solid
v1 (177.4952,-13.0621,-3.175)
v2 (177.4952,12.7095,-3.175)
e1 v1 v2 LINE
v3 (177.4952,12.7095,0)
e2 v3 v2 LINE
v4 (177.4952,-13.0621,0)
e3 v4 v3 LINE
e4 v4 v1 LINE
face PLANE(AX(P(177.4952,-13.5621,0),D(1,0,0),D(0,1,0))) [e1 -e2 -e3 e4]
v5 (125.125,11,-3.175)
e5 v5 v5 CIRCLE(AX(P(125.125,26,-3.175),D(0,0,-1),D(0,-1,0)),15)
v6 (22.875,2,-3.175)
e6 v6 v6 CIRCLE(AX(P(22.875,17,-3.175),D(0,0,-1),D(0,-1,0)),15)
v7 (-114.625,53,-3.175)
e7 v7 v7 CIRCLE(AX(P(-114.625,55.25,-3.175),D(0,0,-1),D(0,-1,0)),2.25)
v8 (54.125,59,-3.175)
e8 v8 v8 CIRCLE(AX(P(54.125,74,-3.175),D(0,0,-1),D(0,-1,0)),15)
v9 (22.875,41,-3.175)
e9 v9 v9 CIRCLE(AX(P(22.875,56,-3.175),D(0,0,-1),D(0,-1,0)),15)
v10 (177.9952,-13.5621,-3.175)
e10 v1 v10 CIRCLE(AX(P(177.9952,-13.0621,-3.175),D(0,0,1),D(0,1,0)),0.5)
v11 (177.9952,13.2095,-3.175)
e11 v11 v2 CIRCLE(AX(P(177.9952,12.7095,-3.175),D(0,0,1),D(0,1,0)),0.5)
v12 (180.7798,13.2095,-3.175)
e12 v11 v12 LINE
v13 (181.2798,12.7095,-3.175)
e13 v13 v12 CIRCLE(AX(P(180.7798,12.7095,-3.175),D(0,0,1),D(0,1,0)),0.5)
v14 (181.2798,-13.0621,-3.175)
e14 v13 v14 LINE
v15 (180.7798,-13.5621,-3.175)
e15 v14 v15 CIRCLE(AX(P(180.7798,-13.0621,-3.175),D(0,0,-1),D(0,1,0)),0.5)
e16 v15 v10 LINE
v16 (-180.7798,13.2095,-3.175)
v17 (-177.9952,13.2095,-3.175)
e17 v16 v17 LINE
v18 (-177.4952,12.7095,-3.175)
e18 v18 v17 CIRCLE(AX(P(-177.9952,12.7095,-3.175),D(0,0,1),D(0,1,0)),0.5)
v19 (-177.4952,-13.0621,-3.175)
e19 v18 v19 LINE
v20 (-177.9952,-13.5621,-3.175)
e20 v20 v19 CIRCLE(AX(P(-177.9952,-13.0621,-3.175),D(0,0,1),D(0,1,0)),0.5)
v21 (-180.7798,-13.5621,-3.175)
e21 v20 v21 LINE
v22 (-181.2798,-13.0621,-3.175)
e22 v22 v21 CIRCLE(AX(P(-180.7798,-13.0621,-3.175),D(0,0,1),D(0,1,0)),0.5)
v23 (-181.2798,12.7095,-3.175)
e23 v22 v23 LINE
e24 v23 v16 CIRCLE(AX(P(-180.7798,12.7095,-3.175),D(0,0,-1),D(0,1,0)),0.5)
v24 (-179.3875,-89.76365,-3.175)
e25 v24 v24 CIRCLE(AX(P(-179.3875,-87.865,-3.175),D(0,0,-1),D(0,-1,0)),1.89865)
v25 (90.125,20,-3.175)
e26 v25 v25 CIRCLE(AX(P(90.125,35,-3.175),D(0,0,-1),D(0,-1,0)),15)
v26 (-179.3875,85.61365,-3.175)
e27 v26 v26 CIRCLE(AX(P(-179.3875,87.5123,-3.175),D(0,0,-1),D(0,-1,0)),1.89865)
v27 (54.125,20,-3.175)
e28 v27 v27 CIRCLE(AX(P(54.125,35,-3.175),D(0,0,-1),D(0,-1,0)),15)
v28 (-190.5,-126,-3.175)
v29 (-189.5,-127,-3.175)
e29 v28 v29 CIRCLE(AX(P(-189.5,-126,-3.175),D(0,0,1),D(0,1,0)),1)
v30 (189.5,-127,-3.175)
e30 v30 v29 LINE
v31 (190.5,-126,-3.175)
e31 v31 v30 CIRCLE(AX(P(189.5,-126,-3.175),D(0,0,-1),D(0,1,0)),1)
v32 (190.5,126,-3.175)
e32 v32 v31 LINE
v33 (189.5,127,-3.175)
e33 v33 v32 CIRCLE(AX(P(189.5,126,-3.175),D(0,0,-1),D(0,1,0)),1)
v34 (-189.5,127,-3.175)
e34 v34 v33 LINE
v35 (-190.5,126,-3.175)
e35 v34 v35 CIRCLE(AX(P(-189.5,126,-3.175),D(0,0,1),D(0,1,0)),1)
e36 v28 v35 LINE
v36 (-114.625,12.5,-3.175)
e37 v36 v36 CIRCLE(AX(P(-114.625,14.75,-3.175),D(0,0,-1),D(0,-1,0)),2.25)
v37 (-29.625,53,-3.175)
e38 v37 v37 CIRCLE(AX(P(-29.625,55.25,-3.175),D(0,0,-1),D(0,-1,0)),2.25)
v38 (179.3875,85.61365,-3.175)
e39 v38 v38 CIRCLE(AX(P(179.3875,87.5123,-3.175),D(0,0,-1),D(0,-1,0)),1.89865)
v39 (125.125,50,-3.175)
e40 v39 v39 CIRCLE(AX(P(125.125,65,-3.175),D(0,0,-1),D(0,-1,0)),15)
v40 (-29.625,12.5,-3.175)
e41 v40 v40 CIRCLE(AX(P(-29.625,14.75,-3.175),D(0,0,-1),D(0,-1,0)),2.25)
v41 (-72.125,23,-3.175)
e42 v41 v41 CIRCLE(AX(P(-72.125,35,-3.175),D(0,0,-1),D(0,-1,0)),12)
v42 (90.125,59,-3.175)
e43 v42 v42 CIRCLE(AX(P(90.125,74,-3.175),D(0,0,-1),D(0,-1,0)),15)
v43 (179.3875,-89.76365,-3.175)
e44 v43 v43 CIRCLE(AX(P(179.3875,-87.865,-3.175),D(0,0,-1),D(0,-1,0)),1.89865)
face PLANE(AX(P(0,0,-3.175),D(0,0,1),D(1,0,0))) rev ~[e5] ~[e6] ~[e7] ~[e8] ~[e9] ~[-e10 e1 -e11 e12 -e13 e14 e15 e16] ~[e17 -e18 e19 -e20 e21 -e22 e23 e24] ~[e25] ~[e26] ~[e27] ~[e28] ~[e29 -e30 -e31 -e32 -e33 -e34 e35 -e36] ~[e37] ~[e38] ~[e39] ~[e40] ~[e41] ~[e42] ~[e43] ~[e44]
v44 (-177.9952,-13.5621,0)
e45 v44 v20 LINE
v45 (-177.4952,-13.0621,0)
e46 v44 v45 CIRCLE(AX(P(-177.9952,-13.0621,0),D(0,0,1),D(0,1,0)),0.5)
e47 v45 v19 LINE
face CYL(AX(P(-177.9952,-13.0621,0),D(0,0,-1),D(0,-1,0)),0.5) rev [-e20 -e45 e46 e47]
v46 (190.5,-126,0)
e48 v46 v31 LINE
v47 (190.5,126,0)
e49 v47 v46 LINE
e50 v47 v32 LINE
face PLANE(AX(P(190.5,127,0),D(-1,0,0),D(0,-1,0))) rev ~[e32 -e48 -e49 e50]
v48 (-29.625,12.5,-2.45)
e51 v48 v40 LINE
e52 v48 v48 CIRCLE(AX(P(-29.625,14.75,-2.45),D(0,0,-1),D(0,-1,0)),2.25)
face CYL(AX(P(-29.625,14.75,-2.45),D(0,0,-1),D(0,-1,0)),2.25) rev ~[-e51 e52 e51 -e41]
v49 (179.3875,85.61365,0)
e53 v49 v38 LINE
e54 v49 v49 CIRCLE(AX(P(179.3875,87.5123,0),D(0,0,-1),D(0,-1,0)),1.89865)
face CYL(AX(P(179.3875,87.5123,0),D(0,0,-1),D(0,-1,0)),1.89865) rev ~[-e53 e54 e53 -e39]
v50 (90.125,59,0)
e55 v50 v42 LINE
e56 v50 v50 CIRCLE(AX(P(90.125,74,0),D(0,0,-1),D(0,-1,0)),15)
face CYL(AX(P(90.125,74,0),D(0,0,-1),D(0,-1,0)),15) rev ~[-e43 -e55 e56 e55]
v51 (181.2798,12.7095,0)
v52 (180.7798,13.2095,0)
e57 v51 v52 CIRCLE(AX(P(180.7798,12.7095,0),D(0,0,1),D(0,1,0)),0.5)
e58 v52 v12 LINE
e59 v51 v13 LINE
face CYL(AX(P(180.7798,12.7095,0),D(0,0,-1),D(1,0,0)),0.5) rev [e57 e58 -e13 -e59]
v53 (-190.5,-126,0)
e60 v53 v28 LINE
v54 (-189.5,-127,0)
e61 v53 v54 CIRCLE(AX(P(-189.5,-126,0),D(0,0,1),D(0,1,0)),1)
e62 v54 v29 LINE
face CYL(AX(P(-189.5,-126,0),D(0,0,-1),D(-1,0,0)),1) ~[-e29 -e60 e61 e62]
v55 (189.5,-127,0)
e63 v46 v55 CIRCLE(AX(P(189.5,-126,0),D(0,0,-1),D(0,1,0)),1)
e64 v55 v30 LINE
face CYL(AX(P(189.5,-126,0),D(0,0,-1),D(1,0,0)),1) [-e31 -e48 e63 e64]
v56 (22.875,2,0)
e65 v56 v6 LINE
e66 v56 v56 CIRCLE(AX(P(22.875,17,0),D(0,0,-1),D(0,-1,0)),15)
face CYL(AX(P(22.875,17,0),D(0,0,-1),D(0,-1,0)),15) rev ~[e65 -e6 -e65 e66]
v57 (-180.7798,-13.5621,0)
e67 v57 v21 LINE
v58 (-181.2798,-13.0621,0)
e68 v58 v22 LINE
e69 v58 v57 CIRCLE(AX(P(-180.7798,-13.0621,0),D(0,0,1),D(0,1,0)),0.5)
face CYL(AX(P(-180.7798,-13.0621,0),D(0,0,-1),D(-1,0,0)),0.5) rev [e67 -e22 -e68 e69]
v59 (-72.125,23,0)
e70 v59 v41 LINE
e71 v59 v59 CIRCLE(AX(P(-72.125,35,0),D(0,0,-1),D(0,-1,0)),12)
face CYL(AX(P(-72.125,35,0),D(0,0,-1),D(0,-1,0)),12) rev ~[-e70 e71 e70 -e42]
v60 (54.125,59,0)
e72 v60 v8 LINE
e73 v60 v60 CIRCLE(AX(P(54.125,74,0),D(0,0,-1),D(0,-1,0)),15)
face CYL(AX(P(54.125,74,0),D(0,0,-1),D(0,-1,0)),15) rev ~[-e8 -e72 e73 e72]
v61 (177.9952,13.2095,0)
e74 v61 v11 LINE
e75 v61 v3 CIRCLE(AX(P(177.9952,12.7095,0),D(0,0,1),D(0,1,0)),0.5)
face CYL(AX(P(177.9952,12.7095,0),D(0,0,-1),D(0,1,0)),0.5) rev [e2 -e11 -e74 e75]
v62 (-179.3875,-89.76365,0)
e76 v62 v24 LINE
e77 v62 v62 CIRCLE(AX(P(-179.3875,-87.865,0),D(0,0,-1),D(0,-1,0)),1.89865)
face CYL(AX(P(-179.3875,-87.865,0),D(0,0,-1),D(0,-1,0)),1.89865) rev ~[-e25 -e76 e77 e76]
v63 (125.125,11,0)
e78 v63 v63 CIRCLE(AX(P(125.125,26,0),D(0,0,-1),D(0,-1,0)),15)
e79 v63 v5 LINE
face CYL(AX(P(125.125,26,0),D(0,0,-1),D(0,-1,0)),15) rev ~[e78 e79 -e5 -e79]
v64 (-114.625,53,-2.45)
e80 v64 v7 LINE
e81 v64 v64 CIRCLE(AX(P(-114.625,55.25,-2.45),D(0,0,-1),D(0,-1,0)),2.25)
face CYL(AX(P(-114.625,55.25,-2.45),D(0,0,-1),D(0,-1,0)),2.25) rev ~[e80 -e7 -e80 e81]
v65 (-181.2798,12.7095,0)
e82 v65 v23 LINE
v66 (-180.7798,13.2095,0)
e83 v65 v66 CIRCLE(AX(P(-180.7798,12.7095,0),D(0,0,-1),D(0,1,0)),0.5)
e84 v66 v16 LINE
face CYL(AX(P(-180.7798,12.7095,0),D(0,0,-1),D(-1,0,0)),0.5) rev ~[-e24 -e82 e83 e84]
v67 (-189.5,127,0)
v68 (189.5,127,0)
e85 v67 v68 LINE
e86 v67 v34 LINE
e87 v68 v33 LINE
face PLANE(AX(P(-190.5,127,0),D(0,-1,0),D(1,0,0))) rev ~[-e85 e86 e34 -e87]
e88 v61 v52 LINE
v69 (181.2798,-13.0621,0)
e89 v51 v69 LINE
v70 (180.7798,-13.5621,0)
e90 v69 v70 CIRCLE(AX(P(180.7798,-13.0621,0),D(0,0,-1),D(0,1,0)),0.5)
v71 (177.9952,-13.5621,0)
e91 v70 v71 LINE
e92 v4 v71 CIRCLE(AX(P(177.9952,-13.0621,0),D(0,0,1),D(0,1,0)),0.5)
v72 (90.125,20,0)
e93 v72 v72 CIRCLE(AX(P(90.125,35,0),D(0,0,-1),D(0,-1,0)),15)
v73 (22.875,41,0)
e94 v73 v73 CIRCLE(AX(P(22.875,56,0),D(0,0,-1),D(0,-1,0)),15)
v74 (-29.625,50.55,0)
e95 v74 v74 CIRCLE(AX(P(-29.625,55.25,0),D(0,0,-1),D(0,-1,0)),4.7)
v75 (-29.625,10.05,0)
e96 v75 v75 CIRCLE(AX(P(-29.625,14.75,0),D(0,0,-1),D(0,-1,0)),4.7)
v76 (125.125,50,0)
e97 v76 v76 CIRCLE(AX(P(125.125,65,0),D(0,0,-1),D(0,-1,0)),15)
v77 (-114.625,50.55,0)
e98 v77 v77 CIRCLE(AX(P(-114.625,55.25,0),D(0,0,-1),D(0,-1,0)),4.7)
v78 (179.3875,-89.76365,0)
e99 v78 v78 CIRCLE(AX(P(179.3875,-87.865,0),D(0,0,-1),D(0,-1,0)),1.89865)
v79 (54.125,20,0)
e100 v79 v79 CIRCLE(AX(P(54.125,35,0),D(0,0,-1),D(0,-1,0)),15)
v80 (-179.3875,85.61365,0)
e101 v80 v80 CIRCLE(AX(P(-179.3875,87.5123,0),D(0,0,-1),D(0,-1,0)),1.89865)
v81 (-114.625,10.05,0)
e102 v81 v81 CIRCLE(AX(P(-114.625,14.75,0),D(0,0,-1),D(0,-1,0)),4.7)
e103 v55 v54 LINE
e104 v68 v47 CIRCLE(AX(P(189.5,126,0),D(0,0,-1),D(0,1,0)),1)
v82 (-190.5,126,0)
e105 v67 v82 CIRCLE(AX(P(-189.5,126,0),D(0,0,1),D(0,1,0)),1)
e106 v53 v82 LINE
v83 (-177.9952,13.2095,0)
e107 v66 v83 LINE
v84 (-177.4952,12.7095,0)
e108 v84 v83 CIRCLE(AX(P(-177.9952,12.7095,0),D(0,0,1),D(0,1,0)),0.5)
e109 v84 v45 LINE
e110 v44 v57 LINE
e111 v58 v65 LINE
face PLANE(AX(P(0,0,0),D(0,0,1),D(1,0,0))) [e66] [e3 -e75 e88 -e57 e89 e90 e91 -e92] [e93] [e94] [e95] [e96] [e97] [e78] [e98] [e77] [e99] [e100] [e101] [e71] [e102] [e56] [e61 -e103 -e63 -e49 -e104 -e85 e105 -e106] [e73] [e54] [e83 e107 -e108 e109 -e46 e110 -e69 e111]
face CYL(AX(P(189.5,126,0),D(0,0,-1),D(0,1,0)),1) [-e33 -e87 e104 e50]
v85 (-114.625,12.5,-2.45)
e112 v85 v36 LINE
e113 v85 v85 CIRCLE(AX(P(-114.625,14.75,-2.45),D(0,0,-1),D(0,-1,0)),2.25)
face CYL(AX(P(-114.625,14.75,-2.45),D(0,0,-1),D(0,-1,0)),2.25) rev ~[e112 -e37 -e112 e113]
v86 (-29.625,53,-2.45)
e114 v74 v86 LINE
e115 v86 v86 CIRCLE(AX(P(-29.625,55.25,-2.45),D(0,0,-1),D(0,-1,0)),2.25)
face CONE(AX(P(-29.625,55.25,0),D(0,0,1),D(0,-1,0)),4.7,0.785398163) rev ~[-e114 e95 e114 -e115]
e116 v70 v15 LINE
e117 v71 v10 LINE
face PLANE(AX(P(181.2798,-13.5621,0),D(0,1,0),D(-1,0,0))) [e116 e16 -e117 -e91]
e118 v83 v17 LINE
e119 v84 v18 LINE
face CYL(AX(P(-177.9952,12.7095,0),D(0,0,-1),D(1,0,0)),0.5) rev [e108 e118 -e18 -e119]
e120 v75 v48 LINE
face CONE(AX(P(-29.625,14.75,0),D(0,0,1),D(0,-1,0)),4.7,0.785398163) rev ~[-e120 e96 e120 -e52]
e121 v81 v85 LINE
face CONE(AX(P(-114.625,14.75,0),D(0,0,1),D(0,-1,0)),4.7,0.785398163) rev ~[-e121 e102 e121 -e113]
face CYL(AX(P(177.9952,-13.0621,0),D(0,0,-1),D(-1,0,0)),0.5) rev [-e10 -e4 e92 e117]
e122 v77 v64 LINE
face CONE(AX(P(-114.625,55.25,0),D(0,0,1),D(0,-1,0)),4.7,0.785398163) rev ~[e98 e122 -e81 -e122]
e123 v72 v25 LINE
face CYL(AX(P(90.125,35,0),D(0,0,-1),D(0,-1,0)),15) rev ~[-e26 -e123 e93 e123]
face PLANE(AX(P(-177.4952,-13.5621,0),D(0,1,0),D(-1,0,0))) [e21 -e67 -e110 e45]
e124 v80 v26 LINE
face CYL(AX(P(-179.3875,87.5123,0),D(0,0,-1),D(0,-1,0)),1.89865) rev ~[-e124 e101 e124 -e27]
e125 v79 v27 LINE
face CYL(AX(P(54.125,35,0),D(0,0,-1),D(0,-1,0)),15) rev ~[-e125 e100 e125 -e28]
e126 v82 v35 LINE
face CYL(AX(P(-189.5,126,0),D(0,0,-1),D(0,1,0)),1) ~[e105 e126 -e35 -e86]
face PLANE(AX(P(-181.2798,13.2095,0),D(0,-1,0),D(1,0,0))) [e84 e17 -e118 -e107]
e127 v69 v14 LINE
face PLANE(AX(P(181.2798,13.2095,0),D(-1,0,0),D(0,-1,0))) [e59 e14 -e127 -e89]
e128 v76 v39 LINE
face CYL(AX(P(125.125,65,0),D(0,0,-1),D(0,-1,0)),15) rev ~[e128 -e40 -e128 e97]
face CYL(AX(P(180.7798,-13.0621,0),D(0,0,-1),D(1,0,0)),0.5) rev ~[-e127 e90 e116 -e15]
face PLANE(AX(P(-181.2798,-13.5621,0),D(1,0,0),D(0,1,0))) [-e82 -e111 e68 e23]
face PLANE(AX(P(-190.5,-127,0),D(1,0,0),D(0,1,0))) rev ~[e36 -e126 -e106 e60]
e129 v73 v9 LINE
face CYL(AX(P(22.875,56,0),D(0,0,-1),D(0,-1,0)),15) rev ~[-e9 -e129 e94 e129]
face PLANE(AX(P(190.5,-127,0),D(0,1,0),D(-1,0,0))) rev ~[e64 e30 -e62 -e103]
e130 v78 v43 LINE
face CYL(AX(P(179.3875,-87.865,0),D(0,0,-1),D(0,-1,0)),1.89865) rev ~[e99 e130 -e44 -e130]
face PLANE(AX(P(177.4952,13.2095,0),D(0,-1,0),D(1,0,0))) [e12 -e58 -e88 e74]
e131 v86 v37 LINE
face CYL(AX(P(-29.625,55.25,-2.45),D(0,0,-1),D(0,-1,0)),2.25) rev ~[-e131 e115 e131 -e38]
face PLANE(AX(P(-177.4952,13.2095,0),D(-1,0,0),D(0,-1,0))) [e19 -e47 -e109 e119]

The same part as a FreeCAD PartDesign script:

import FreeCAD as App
import Part
import Sketcher

V = App.Vector
Q = App.Units.Quantity


def edges_at(feature, points):
    """Names of the edges that pass closest to the given points."""
    edges = feature.Shape.Edges
    near = lambda p: min(range(len(edges)), key=lambda i: edges[i].distToShape(Part.Vertex(*p))[0])
    return sorted({f"Edge{near(p) + 1}" for p in points})

doc = App.newDocument("Part")
body = doc.addObject("PartDesign::Body", "Body")

# Sketch on XY plane
sketch1 = body.newObject("Sketcher::SketchObject", "Sketch")
sketch1.AttachmentSupport = (doc.getObject("XY_Plane"), [""])
sketch1.MapMode = "FlatFace"
sketch1.addGeometry([
    Part.LineSegment(V(190, 127, 0), V(-190, 127, 0)),
    Part.LineSegment(V(-190, 127, 0), V(-190, -127, 0)),
    Part.LineSegment(V(-190, -127, 0), V(190, -127, 0)),
    Part.LineSegment(V(190, -127, 0), V(190, 127, 0)),
], False)
sketch1.addConstraint([
    Sketcher.Constraint("Coincident", 0, 2, 1, 1),
    Sketcher.Constraint("Coincident", 1, 2, 2, 1),
    Sketcher.Constraint("Coincident", 2, 2, 3, 1),
    Sketcher.Constraint("Coincident", 3, 2, 0, 1),
    Sketcher.Constraint("Horizontal", 0),
    Sketcher.Constraint("Vertical", 1),
    Sketcher.Constraint("Horizontal", 2),
    Sketcher.Constraint("Vertical", 3),
    Sketcher.Constraint("Symmetric", 0, 2, 2, 2, -1, 1),
    Sketcher.Constraint("DistanceX", 0, 2, 0, 1, Q("15 in")),
    Sketcher.Constraint("DistanceY", 1, 2, 1, 1, Q("10 in")),
])
pad1 = body.newObject("PartDesign::Pad", "Pad")
pad1.Profile = sketch1
pad1.Length = Q("0.125 in")
pad1.Reversed = True

# Sketch on XY plane
sketch2 = body.newObject("Sketcher::SketchObject", "Sketch001")
sketch2.AttachmentSupport = (doc.getObject("XY_Plane"), [""])
sketch2.MapMode = "FlatFace"
sketch2.addGeometry([
    Part.Circle(V(-29.6, 14.8, 0), V(0, 0, 1), 2.2),
    Part.Circle(V(-29.6, 55.2, 0), V(0, 0, 1), 2.2),
    Part.Circle(V(-114.6, 55.2, 0), V(0, 0, 1), 2.2),
    Part.Circle(V(-114.6, 14.8, 0), V(0, 0, 1), 2.2),
], False)
sketch2.addConstraint([
    Sketcher.Constraint("Equal", 0, 1),
    Sketcher.Constraint("Equal", 1, 2),
    Sketcher.Constraint("Equal", 2, 3),
    Sketcher.Constraint("Horizontal", 1, 3, 2, 3),
    Sketcher.Constraint("Horizontal", 0, 3, 3, 3),
    Sketcher.Constraint("Vertical", 0, 3, 1, 3),
    Sketcher.Constraint("Vertical", 2, 3, 3, 3),
    Sketcher.Constraint("Diameter", 0, Q("4.5 mm")),
    Sketcher.Constraint("DistanceY", -1, 1, 0, 3, Q("0.5807 in")),
    Sketcher.Constraint("DistanceY", -1, 1, 1, 3, Q("2.1752 in")),
    Sketcher.Constraint("DistanceX", 2, 3, -1, 1, Q("4.5128 in")),
    Sketcher.Constraint("DistanceX", 0, 3, -1, 1, Q("29.625 mm")),
])
doc.recompute()
hole = body.newObject("PartDesign::Hole", "Hole")
hole.Profile = sketch2
hole.ThreadType = "None"
hole.Diameter = 4.5
hole.DepthType = "ThroughAll"
hole.HoleCutType = "Countersink"
hole.HoleCutDiameter = 9.4
hole.HoleCutCountersinkAngle = 90

# Sketch on XY plane
sketch3 = body.newObject("Sketcher::SketchObject", "Sketch002")
sketch3.AttachmentSupport = (doc.getObject("XY_Plane"), [""])
sketch3.MapMode = "FlatFace"
sketch3.addGeometry(Part.Circle(V(-72, 35, 0), V(0, 0, 1), 12), False)
sketch3.addConstraint([
    Sketcher.Constraint("Diameter", 0, Q("24 mm")),
    Sketcher.Constraint("DistanceX", 0, 3, -1, 1, Q("72.125 mm")),
    Sketcher.Constraint("DistanceY", -1, 1, 0, 3, Q("35 mm")),
])
doc.recompute()
hole2 = body.newObject("PartDesign::Hole", "Hole001")
hole2.Profile = sketch3
hole2.ThreadType = "None"
hole2.Diameter = 24
hole2.DepthType = "ThroughAll"

# Sketch on XY plane
sketch4 = body.newObject("Sketcher::SketchObject", "Sketch003")
sketch4.AttachmentSupport = (doc.getObject("XY_Plane"), [""])
sketch4.MapMode = "FlatFace"
sketch4.addGeometry([
    Part.Circle(V(125, 26, 0), V(0, 0, 1), 15),  # 0
    Part.Circle(V(90, 35, 0), V(0, 0, 1), 15),  # 1
    Part.Circle(V(90, 74, 0), V(0, 0, 1), 15),  # 2
    Part.Circle(V(125, 65, 0), V(0, 0, 1), 15),  # 3
    Part.Circle(V(54, 74, 0), V(0, 0, 1), 15),  # 4
    Part.Circle(V(54, 35, 0), V(0, 0, 1), 15),  # 5
    Part.Circle(V(23, 56, 0), V(0, 0, 1), 15),  # 6
    Part.Circle(V(23, 17, 0), V(0, 0, 1), 15),  # 7
], False)
sketch4.addConstraint([
    Sketcher.Constraint("Equal", 0, 1),
    Sketcher.Constraint("Equal", 1, 2),
    Sketcher.Constraint("Equal", 2, 3),
    Sketcher.Constraint("Equal", 3, 4),
    Sketcher.Constraint("Equal", 4, 5),
    Sketcher.Constraint("Equal", 5, 6),
    Sketcher.Constraint("Equal", 6, 7),
    Sketcher.Constraint("Horizontal", 2, 3, 4, 3),
    Sketcher.Constraint("Horizontal", 1, 3, 5, 3),
    Sketcher.Constraint("Vertical", 1, 3, 2, 3),
    Sketcher.Constraint("Vertical", 0, 3, 3, 3),
    Sketcher.Constraint("Vertical", 4, 3, 5, 3),
    Sketcher.Constraint("Vertical", 6, 3, 7, 3),
    Sketcher.Constraint("Diameter", 0, Q("1.1811 in")),
    Sketcher.Constraint("DistanceX", -1, 1, 4, 3, Q("2.1309 in")),
    Sketcher.Constraint("DistanceX", -1, 1, 6, 3, Q("0.9006 in")),
    Sketcher.Constraint("DistanceY", -1, 1, 7, 3, Q("0.6693 in")),
    Sketcher.Constraint("DistanceY", 1, 3, 3, 3, Q("1.1811 in")),
    Sketcher.Constraint("DistanceX", 6, 3, 3, 3, Q("4.0256 in")),
    Sketcher.Constraint("DistanceY", 7, 3, 4, 3, Q("2.2441 in")),
    Sketcher.Constraint("DistanceY", -1, 1, 0, 3, Q("26 mm")),
    Sketcher.Constraint("DistanceX", -1, 1, 1, 3, Q("90.125 mm")),
    Sketcher.Constraint("DistanceY", -1, 1, 1, 3, Q("35 mm")),
    Sketcher.Constraint("DistanceY", -1, 1, 6, 3, Q("56 mm")),
])
doc.recompute()
hole3 = body.newObject("PartDesign::Hole", "Hole002")
hole3.Profile = sketch4
hole3.ThreadType = "None"
hole3.Diameter = Q("1.1811024 in")
hole3.DepthType = "ThroughAll"
doc.recompute()

fillet = body.newObject("PartDesign::Fillet", "Fillet")
fillet.Base = (hole3, edges_at(hole3, [
    (190.5, 127, -1.587),
    (190.5, -127, -1.587),
    (-190.5, 127, -1.587),
    (-190.5, -127, -1.587),
]))
fillet.Radius = 1

# Sketch on XY plane
sketch5 = body.newObject("Sketcher::SketchObject", "Sketch004")
sketch5.AttachmentSupport = (doc.getObject("XY_Plane"), [""])
sketch5.MapMode = "FlatFace"
sketch5.addGeometry([
    Part.Circle(V(-179.4, 87.5, 0), V(0, 0, 1), 1.9),
    Part.Circle(V(-179.4, -87.9, 0), V(0, 0, 1), 1.9),
    Part.Circle(V(179.4, -87.9, 0), V(0, 0, 1), 1.9),
    Part.Circle(V(179.4, 87.5, 0), V(0, 0, 1), 1.9),
], False)
sketch5.addConstraint([
    Sketcher.Constraint("Equal", 0, 1),
    Sketcher.Constraint("Equal", 1, 2),
    Sketcher.Constraint("Equal", 2, 3),
    Sketcher.Constraint("Symmetric", 1, 3, 2, 3, -2),
    Sketcher.Constraint("Symmetric", 0, 3, 3, 3, -2),
    Sketcher.Constraint("Vertical", 0, 3, 1, 3),
    Sketcher.Constraint("Diameter", 0, Q("0.1495 in")),
    Sketcher.Constraint("DistanceX", 0, 3, -1, 1, Q("7.0625 in")),
    Sketcher.Constraint("DistanceY", -1, 1, 0, 3, Q("87.5123 mm")),
    Sketcher.Constraint("DistanceY", 1, 3, -1, 1, Q("87.865 mm")),
])
doc.recompute()
hole4 = body.newObject("PartDesign::Hole", "Hole003")
hole4.Profile = sketch5
hole4.ThreadType = "None"
hole4.Diameter = Q("0.1495 in")
hole4.DepthType = "ThroughAll"

# Sketch on XY plane
sketch6 = body.newObject("Sketcher::SketchObject", "Sketch005")
sketch6.AttachmentSupport = (doc.getObject("XY_Plane"), [""])
sketch6.MapMode = "FlatFace"
sketch6.addGeometry([
    Part.LineSegment(V(-177.5, 13.2, 0), V(-181.3, 13.2, 0)),  # 0
    Part.LineSegment(V(-181.3, 13.2, 0), V(-181.3, -13.6, 0)),  # 1
    Part.LineSegment(V(-181.3, -13.6, 0), V(-177.5, -13.6, 0)),  # 2
    Part.LineSegment(V(-177.5, -13.6, 0), V(-177.5, 13.2, 0)),  # 3
    Part.LineSegment(V(177.5, -13.6, 0), V(181.3, -13.6, 0)),  # 4
    Part.LineSegment(V(181.3, -13.6, 0), V(181.3, 13.2, 0)),  # 5
    Part.LineSegment(V(181.3, 13.2, 0), V(177.5, 13.2, 0)),  # 6
    Part.LineSegment(V(177.5, 13.2, 0), V(177.5, -13.6, 0)),  # 7
], False)
sketch6.addConstraint([
    Sketcher.Constraint("Coincident", 0, 2, 1, 1),
    Sketcher.Constraint("Coincident", 1, 2, 2, 1),
    Sketcher.Constraint("Coincident", 2, 2, 3, 1),
    Sketcher.Constraint("Coincident", 3, 2, 0, 1),
    Sketcher.Constraint("Coincident", 4, 2, 5, 1),
    Sketcher.Constraint("Coincident", 5, 2, 6, 1),
    Sketcher.Constraint("Coincident", 6, 2, 7, 1),
    Sketcher.Constraint("Coincident", 7, 2, 4, 1),
    Sketcher.Constraint("Horizontal", 0),
    Sketcher.Constraint("Vertical", 1),
    Sketcher.Constraint("Horizontal", 2),
    Sketcher.Constraint("Vertical", 3),
    Sketcher.Constraint("Horizontal", 4),
    Sketcher.Constraint("Vertical", 5),
    Sketcher.Constraint("Horizontal", 6),
    Sketcher.Constraint("Vertical", 7),
    Sketcher.Constraint("Symmetric", 1, 2, 4, 2, -2),
    Sketcher.Constraint("Symmetric", 3, 2, 6, 2, -2),
    Sketcher.Constraint("DistanceX", 0, 2, 0, 1, Q("0.149 in")),
    Sketcher.Constraint("DistanceY", 1, 2, 1, 1, Q("1.054 in")),
    Sketcher.Constraint("DistanceX", 0, 2, -1, 1, Q("7.137 in")),
    Sketcher.Constraint("DistanceY", -1, 1, 0, 2, Q("13.2095 mm")),
])
pocket1 = body.newObject("PartDesign::Pocket", "Pocket")
pocket1.Profile = sketch6
pocket1.Length = Q("0.125 in")
doc.recompute()

fillet2 = body.newObject("PartDesign::Fillet", "Fillet001")
fillet2.Base = (pocket1, edges_at(pocket1, [
    (-177.495, 13.21, -1.587),
    (-181.28, 13.21, -1.587),
    (-177.495, -13.562, -1.587),
    (-181.28, -13.562, -1.587),
    (181.28, 13.21, -1.587),
    (177.495, 13.21, -1.587),
    (177.495, -13.562, -1.587),
    (181.28, -13.562, -1.587),
]))
fillet2.Radius = 0.5

doc.recompute()
